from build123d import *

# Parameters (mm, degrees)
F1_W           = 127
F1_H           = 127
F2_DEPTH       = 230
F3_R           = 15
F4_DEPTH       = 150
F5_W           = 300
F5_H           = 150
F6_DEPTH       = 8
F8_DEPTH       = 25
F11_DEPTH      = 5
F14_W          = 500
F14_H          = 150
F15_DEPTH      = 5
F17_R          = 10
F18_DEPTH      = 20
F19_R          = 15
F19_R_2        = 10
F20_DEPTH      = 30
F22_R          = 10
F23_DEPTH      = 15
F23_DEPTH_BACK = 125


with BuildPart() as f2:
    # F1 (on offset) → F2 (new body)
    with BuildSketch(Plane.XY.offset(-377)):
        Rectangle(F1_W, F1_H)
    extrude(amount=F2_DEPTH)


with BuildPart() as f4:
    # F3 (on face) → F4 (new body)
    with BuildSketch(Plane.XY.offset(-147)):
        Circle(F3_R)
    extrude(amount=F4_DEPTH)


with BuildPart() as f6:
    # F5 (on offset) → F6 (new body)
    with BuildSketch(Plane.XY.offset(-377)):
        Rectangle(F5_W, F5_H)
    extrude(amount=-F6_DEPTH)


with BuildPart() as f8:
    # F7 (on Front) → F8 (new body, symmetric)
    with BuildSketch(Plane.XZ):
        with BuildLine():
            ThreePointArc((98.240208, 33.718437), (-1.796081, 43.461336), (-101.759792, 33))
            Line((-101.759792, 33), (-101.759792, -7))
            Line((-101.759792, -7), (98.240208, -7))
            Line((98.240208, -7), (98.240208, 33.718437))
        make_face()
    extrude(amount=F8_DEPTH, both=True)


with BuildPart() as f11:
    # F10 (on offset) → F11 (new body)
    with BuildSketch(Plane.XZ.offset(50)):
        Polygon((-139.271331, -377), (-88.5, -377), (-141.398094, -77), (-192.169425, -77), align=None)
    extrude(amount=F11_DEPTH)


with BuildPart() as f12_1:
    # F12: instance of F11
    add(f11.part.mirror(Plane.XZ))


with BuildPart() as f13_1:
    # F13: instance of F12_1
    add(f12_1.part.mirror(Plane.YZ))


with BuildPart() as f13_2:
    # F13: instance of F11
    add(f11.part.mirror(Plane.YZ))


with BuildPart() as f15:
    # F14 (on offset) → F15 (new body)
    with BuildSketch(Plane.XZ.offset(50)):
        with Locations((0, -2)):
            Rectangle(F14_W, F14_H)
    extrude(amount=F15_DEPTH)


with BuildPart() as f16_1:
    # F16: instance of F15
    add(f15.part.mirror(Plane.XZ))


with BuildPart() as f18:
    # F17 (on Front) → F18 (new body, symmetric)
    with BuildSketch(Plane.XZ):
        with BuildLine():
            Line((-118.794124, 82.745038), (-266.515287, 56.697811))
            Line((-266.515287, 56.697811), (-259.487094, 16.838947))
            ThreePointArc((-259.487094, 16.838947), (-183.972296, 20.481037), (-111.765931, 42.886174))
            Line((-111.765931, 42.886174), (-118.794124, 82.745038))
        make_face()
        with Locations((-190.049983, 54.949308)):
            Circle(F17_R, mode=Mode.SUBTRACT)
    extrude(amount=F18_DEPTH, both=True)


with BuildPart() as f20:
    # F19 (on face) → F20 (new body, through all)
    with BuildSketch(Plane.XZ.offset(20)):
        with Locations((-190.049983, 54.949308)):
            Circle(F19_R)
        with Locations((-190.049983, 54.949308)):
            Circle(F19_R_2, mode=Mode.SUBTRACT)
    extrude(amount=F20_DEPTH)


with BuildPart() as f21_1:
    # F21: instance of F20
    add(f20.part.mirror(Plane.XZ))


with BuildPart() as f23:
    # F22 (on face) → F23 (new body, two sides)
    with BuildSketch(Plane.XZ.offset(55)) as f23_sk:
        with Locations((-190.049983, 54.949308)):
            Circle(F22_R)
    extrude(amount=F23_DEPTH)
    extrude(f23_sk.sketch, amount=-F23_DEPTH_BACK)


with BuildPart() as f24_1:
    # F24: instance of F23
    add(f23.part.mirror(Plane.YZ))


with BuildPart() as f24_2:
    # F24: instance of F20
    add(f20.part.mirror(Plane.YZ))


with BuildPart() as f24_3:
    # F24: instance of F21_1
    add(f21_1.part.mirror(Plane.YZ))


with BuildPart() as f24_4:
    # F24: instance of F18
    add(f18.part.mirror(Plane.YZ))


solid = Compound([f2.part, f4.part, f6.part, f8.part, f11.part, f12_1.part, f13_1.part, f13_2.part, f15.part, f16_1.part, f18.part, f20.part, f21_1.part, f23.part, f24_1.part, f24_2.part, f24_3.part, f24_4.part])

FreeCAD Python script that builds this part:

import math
import FreeCAD as App
import Part
import Sketcher

V = App.Vector
Q = App.Units.Quantity

doc = App.newDocument("Part")
body = doc.addObject("PartDesign::Body", "Body")

# Sketch on XY plane
sketch1 = doc.addObject("Sketcher::SketchObject", "Sketch")
body.addObject(sketch1)
sketch1.AttachmentSupport = (doc.XY_Plane, [""])
sketch1.MapMode = "FlatFace"
sketch1.AttachmentOffset = App.Placement(V(0, 0, -377), App.Rotation())
sketch1.addGeometry([
    Part.LineSegment(V(-64, 64, 0), V(-64, -64, 0)),
    Part.LineSegment(V(-64, -64, 0), V(64, -64, 0)),
    Part.LineSegment(V(64, -64, 0), V(64, 64, 0)),
    Part.LineSegment(V(64, 64, 0), V(-64, 64, 0)),
], False)
sketch1.addConstraint([
    Sketcher.Constraint("Coincident", 0, 2, 1, 1),
    Sketcher.Constraint("Coincident", 1, 2, 2, 1),
    Sketcher.Constraint("Coincident", 2, 2, 3, 1),
    Sketcher.Constraint("Coincident", 3, 2, 0, 1),
    Sketcher.Constraint("Vertical", 0),
    Sketcher.Constraint("Horizontal", 1),
    Sketcher.Constraint("Vertical", 2),
    Sketcher.Constraint("Horizontal", 3),
    Sketcher.Constraint("Symmetric", 0, 2, 2, 2, -1, 1),
    Sketcher.Constraint("Equal", 3, 0),
    Sketcher.Constraint("DistanceX", 1, 1, 1, 2, 127.0),
])
pad1 = doc.addObject("PartDesign::Pad", "Pad")
body.addObject(pad1)
pad1.Profile = sketch1
pad1.Length = 230
body2 = doc.addObject("PartDesign::Body", "Body001")

# Sketch on XY plane
sketch2 = doc.addObject("Sketcher::SketchObject", "Sketch001")
body2.addObject(sketch2)
sketch2.AttachmentSupport = (doc.getObject("XY_Plane001"), [""])
sketch2.MapMode = "FlatFace"
sketch2.AttachmentOffset = App.Placement(V(0, 0, -147), App.Rotation())
sketch2.addGeometry(Part.Circle(V(0, 0, 0), V(0, 0, 1), 15), False)
sketch2.addConstraint([
    Sketcher.Constraint("Coincident", 0, 3, -1, 1),
    Sketcher.Constraint("Diameter", 0, 30.0),
])
pad2 = doc.addObject("PartDesign::Pad", "Pad001")
body2.addObject(pad2)
pad2.Profile = sketch2
pad2.Length = 150
body3 = doc.addObject("PartDesign::Body", "Body002")

# Sketch on XY plane
sketch3 = doc.addObject("Sketcher::SketchObject", "Sketch002")
body3.addObject(sketch3)
sketch3.AttachmentSupport = (doc.getObject("XY_Plane002"), [""])
sketch3.MapMode = "FlatFace"
sketch3.AttachmentOffset = App.Placement(V(0, 0, -377), App.Rotation())
sketch3.addGeometry([
    Part.LineSegment(V(-150, 75, 0), V(-150, -75, 0)),
    Part.LineSegment(V(-150, -75, 0), V(150, -75, 0)),
    Part.LineSegment(V(150, -75, 0), V(150, 75, 0)),
    Part.LineSegment(V(150, 75, 0), V(-150, 75, 0)),
], False)
sketch3.addConstraint([
    Sketcher.Constraint("Coincident", 0, 2, 1, 1),
    Sketcher.Constraint("Coincident", 1, 2, 2, 1),
    Sketcher.Constraint("Coincident", 2, 2, 3, 1),
    Sketcher.Constraint("Coincident", 3, 2, 0, 1),
    Sketcher.Constraint("Vertical", 0),
    Sketcher.Constraint("Horizontal", 1),
    Sketcher.Constraint("Vertical", 2),
    Sketcher.Constraint("Horizontal", 3),
    Sketcher.Constraint("Symmetric", 0, 2, 2, 2, -1, 1),
    Sketcher.Constraint("DistanceX", 1, 1, 1, 2, 300.0),
    Sketcher.Constraint("DistanceY", 0, 2, 0, 1, 150.0),
])
pad3 = doc.addObject("PartDesign::Pad", "Pad002")
body3.addObject(pad3)
pad3.Profile = sketch3
pad3.Length = 8
pad3.Reversed = True
body4 = doc.addObject("PartDesign::Body", "Body003")

# Sketch on XZ plane
sketch4 = doc.addObject("Sketcher::SketchObject", "Sketch003")
body4.addObject(sketch4)
sketch4.AttachmentSupport = (doc.getObject("XZ_Plane003"), [""])
sketch4.MapMode = "FlatFace"
sketch4.addGeometry([
    Part.ArcOfCircle(Part.Circle(V(0, -457, 0), V(0, 0, 1), 500), math.radians(79), math.radians(102)),
    Part.LineSegment(V(-102, 33, 0), V(-102, -7, 0)),
    Part.LineSegment(V(-102, -7, 0), V(98, -7, 0)),
    Part.LineSegment(V(98, -7, 0), V(98, 34, 0)),
], False)
sketch4.addConstraint([
    Sketcher.Constraint("Coincident", 0, 2, 1, 1),
    Sketcher.Constraint("Coincident", 1, 2, 2, 1),
    Sketcher.Constraint("Coincident", 2, 2, 3, 1),
    Sketcher.Constraint("Coincident", 3, 2, 0, 1),
    Sketcher.Constraint("Vertical", 1),
    Sketcher.Constraint("Horizontal", 2),
    Sketcher.Constraint("Vertical", 3),
    Sketcher.Constraint("PointOnObject", 0, 3, -2),
    Sketcher.Constraint("DistanceX", 2, 1, 2, 2, 200.0),
    Sketcher.Constraint("DistanceY", 1, 2, 1, 1, 40.0),
    Sketcher.Constraint("DistanceY", -1, 1, 0, 2, 33.0),
    Sketcher.Constraint("Radius", 0, 500.000022),
    Sketcher.Constraint("DistanceY", 3, 1, 3, 2, 40.718437),
])
pad4 = doc.addObject("PartDesign::Pad", "Pad003")
body4.addObject(pad4)
pad4.Profile = sketch4
pad4.Length = 50
pad4.Midplane = True
body5 = doc.addObject("PartDesign::Body", "Body004")

# Sketch on XZ plane
sketch5 = doc.addObject("Sketcher::SketchObject", "Sketch004")
body5.addObject(sketch5)
sketch5.AttachmentSupport = (doc.getObject("XZ_Plane004"), [""])
sketch5.MapMode = "FlatFace"
sketch5.AttachmentOffset = App.Placement(V(0, 0, 50), App.Rotation())
sketch5.addGeometry([
    Part.LineSegment(V(-139, -377, 0), V(-88, -377, 0)),
    Part.LineSegment(V(-88, -377, 0), V(-141, -77, 0)),
    Part.LineSegment(V(-141, -77, 0), V(-192, -77, 0)),
    Part.LineSegment(V(-192, -77, 0), V(-139, -377, 0)),
], False)
sketch5.addConstraint([
    Sketcher.Constraint("Coincident", 0, 2, 1, 1),
    Sketcher.Constraint("Coincident", 1, 2, 2, 1),
    Sketcher.Constraint("Coincident", 2, 2, 3, 1),
    Sketcher.Constraint("Coincident", 3, 2, 0, 1),
    Sketcher.Constraint("Horizontal", 0),
    Sketcher.Constraint("Horizontal", 2),
    Sketcher.Constraint("Parallel", 1, 3),
    Sketcher.Constraint("Angle", 1, Q("100 deg")),
    Sketcher.Constraint("DistanceY", 0, 2, -1, 1, 377.0),
    Sketcher.Constraint("DistanceY", 1, 2, -1, 1, 77.0),
    Sketcher.Constraint("DistanceX", 0, 2, -1, 1, 88.5),
    Sketcher.Constraint("DistanceX", 0, 1, 0, 2, 50.771331),
])
pad5 = doc.addObject("PartDesign::Pad", "Pad004")
body5.addObject(pad5)
pad5.Profile = sketch5
pad5.Length = 5
body6 = doc.addObject("PartDesign::Body", "Body005")
doc.recompute()

mirroring = doc.addObject("Part::Mirroring", "Mirroring")
mirroring.Source = body5
mirroring.Base = V(0, 0, 0)
mirroring.Normal = V(0, -1, 0)
body6.BaseFeature = mirroring
doc.recompute()
body7 = doc.addObject("PartDesign::Body", "Body006")
doc.recompute()

mirroring2 = doc.addObject("Part::Mirroring", "Mirroring001")
mirroring2.Source = body6
mirroring2.Base = V(0, 0, 0)
mirroring2.Normal = V(1, 0, 0)
body7.BaseFeature = mirroring2
doc.recompute()
body8 = doc.addObject("PartDesign::Body", "Body007")
doc.recompute()

mirroring3 = doc.addObject("Part::Mirroring", "Mirroring002")
mirroring3.Source = body5
mirroring3.Base = V(0, 0, 0)
mirroring3.Normal = V(1, 0, 0)
body8.BaseFeature = mirroring3
doc.recompute()
body9 = doc.addObject("PartDesign::Body", "Body008")

# Sketch on XZ plane
sketch6 = doc.addObject("Sketcher::SketchObject", "Sketch005")
body9.addObject(sketch6)
sketch6.AttachmentSupport = (doc.getObject("XZ_Plane008"), [""])
sketch6.MapMode = "FlatFace"
sketch6.AttachmentOffset = App.Placement(V(0, 0, 50), App.Rotation())
sketch6.addGeometry([
    Part.LineSegment(V(-250, 73, 0), V(-250, -77, 0)),
    Part.LineSegment(V(-250, -77, 0), V(250, -77, 0)),
    Part.LineSegment(V(250, -77, 0), V(250, 73, 0)),
    Part.LineSegment(V(250, 73, 0), V(-250, 73, 0)),
], False)
sketch6.addConstraint([
    Sketcher.Constraint("Coincident", 0, 2, 1, 1),
    Sketcher.Constraint("Coincident", 1, 2, 2, 1),
    Sketcher.Constraint("Coincident", 2, 2, 3, 1),
    Sketcher.Constraint("Coincident", 3, 2, 0, 1),
    Sketcher.Constraint("Vertical", 0),
    Sketcher.Constraint("Horizontal", 1),
    Sketcher.Constraint("Vertical", 2),
    Sketcher.Constraint("Horizontal", 3),
    Sketcher.Constraint("DistanceX", 1, 1, 1, 2, 500.0),
    Sketcher.Constraint("DistanceY", 0, 2, 0, 1, 150.0),
    Sketcher.Constraint("DistanceX", 0, 2, -1, 1, 250.0),
    Sketcher.Constraint("DistanceY", 0, 2, -1, 1, 77.0),
])
pad6 = doc.addObject("PartDesign::Pad", "Pad005")
body9.addObject(pad6)
pad6.Profile = sketch6
pad6.Length = 5
body10 = doc.addObject("PartDesign::Body", "Body009")
doc.recompute()

mirroring4 = doc.addObject("Part::Mirroring", "Mirroring003")
mirroring4.Source = body9
mirroring4.Base = V(0, 0, 0)
mirroring4.Normal = V(0, -1, 0)
body10.BaseFeature = mirroring4
doc.recompute()
body11 = doc.addObject("PartDesign::Body", "Body010")

# Sketch on XZ plane
sketch7 = doc.addObject("Sketcher::SketchObject", "Sketch006")
body11.addObject(sketch7)
sketch7.AttachmentSupport = (doc.getObject("XZ_Plane010"), [""])
sketch7.MapMode = "FlatFace"
sketch7.addGeometry([
    Part.LineSegment(V(-119, 83, 0), V(-267, 57, 0)),  # 0
    Part.LineSegment(V(-267, 57, 0), V(-259, 17, 0)),  # 1
    Part.ArcOfCircle(Part.Circle(V(-236, 316, 0), V(0, 0, 1), 300), math.radians(-94), math.radians(-66)),  # 2
    Part.LineSegment(V(-112, 43, 0), V(-119, 83, 0)),  # 3
    Part.Circle(V(-190, 55, 0), V(0, 0, 1), 10),  # 4
], False)
sketch7.addConstraint([
    Sketcher.Constraint("Coincident", 0, 2, 1, 1),
    Sketcher.Constraint("Coincident", 1, 2, 2, 1),
    Sketcher.Constraint("Coincident", 2, 2, 3, 1),
    Sketcher.Constraint("Coincident", 3, 2, 0, 1),
    Sketcher.Constraint("Perpendicular", 0, 1),
    Sketcher.Constraint("Parallel", 1, 3),
    Sketcher.Constraint("Equal", 1, 3),
    Sketcher.Constraint("Diameter", 4, 20.0),
    Sketcher.Constraint("Angle", 0, Q("-170 deg")),
    Sketcher.Constraint("Distance", 0, 150.0),
    Sketcher.Constraint("Radius", 2, 300.000009),
    Sketcher.Constraint("Distance", 1, 40.473751),
    Sketcher.Constraint("DistanceY", -1, 1, 2, 3, 315.923371),
    Sketcher.Constraint("DistanceY", -1, 1, 4, 3, 54.949308),
    Sketcher.Constraint("DistanceX", 2, 3, 4, 3, 46.016769),
    Sketcher.Constraint("DistanceX", 2, 3, -1, 1, 236.066752),
])
pad7 = doc.addObject("PartDesign::Pad", "Pad006")
body11.addObject(pad7)
pad7.Profile = sketch7
pad7.Length = 40
pad7.Midplane = True
body12 = doc.addObject("PartDesign::Body", "Body011")

# Sketch on XZ plane
sketch8 = doc.addObject("Sketcher::SketchObject", "Sketch007")
body12.addObject(sketch8)
sketch8.AttachmentSupport = (doc.getObject("XZ_Plane011"), [""])
sketch8.MapMode = "FlatFace"
sketch8.AttachmentOffset = App.Placement(V(0, 0, 20), App.Rotation())
sketch8.addGeometry([
    Part.Circle(V(-190, 55, 0), V(0, 0, 1), 15),
    Part.Circle(V(-190, 55, 0), V(0, 0, 1), 10),
], False)
sketch8.addConstraint([
    Sketcher.Constraint("Coincident", 1, 3, 0, 3),
    Sketcher.Constraint("Diameter", 0, 30.0),
    Sketcher.Constraint("Diameter", 1, 20.0),
    Sketcher.Constraint("DistanceY", -1, 1, 0, 3, 54.949308),
    Sketcher.Constraint("DistanceX", 0, 3, -1, 1, 190.049983),
])
pad8 = doc.addObject("PartDesign::Pad", "Pad007")
body12.addObject(pad8)
pad8.Profile = sketch8
pad8.Length = 30
body13 = doc.addObject("PartDesign::Body", "Body012")
doc.recompute()

mirroring5 = doc.addObject("Part::Mirroring", "Mirroring004")
mirroring5.Source = body12
mirroring5.Base = V(0, 0, 0)
mirroring5.Normal = V(0, -1, 0)
body13.BaseFeature = mirroring5
doc.recompute()
body14 = doc.addObject("PartDesign::Body", "Body013")

# Sketch on XZ plane
sketch9 = doc.addObject("Sketcher::SketchObject", "Sketch008")
body14.addObject(sketch9)
sketch9.AttachmentSupport = (doc.getObject("XZ_Plane013"), [""])
sketch9.MapMode = "FlatFace"
sketch9.AttachmentOffset = App.Placement(V(0, 0, 55), App.Rotation())
sketch9.addGeometry(Part.Circle(V(-190, 55, 0), V(0, 0, 1), 10), False)
sketch9.addConstraint([
    Sketcher.Constraint("Diameter", 0, 20.0),
    Sketcher.Constraint("DistanceY", -1, 1, 0, 3, 54.949308),
    Sketcher.Constraint("DistanceX", 0, 3, -1, 1, 190.049983),
])
pad9 = doc.addObject("PartDesign::Pad", "Pad008")
body14.addObject(pad9)
pad9.Profile = sketch9
pad9.Type = "TwoLengths"
pad9.Length = 15
pad9.Length2 = 125
body15 = doc.addObject("PartDesign::Body", "Body014")
doc.recompute()

mirroring6 = doc.addObject("Part::Mirroring", "Mirroring005")
mirroring6.Source = body14
mirroring6.Base = V(0, 0, 0)
mirroring6.Normal = V(1, 0, 0)
body15.BaseFeature = mirroring6
doc.recompute()
body16 = doc.addObject("PartDesign::Body", "Body015")
doc.recompute()

mirroring7 = doc.addObject("Part::Mirroring", "Mirroring006")
mirroring7.Source = body12
mirroring7.Base = V(0, 0, 0)
mirroring7.Normal = V(1, 0, 0)
body16.BaseFeature = mirroring7
doc.recompute()
body17 = doc.addObject("PartDesign::Body", "Body016")
doc.recompute()

mirroring8 = doc.addObject("Part::Mirroring", "Mirroring007")
mirroring8.Source = body13
mirroring8.Base = V(0, 0, 0)
mirroring8.Normal = V(1, 0, 0)
body17.BaseFeature = mirroring8
doc.recompute()
body18 = doc.addObject("PartDesign::Body", "Body017")
doc.recompute()

mirroring9 = doc.addObject("Part::Mirroring", "Mirroring008")
mirroring9.Source = body11
mirroring9.Base = V(0, 0, 0)
mirroring9.Normal = V(1, 0, 0)
body18.BaseFeature = mirroring9
doc.recompute()

doc.recompute()
